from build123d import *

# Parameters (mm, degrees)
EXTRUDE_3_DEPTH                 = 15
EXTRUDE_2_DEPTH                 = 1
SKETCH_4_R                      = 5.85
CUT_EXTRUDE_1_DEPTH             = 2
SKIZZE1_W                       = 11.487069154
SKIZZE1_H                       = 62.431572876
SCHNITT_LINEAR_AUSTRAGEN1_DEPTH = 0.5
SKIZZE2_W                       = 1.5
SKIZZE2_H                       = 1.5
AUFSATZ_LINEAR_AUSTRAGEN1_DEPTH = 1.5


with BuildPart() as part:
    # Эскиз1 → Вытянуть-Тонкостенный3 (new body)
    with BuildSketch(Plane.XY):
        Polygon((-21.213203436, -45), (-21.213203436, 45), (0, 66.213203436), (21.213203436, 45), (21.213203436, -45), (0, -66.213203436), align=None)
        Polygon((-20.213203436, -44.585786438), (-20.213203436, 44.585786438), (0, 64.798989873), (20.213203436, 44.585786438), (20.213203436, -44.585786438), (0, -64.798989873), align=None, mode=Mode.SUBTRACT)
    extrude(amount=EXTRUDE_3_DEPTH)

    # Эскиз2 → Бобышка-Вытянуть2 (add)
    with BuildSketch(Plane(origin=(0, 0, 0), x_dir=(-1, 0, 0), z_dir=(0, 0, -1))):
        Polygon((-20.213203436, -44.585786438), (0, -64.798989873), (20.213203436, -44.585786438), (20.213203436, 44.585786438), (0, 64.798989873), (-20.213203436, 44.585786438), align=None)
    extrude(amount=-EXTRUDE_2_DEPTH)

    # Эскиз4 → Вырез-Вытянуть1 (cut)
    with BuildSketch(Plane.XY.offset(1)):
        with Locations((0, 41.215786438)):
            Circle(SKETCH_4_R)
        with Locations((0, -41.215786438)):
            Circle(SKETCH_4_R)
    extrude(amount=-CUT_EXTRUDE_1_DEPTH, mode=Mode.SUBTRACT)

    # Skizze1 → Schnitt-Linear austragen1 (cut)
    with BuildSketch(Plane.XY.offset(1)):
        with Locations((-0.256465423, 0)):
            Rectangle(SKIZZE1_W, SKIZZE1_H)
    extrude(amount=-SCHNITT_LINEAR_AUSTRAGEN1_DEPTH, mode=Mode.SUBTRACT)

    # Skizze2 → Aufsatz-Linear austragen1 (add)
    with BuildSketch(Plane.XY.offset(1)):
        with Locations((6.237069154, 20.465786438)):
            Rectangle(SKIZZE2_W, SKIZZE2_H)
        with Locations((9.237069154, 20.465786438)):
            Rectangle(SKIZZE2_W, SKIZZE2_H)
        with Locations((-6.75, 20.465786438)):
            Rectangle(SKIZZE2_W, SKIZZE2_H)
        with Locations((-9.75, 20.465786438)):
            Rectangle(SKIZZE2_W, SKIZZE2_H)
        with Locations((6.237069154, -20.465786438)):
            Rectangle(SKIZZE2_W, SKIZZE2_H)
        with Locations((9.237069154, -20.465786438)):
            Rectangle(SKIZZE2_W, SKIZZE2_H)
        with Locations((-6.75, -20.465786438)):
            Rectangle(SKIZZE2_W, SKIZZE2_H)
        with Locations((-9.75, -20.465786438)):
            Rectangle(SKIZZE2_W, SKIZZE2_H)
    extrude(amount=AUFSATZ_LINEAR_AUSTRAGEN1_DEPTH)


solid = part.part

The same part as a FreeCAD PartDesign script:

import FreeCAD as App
import Part
import Sketcher

doc = App.newDocument("Part")
body = doc.addObject("PartDesign::Body", "Body")

sketch1 = body.newObject("Sketcher::SketchObject", "Sketch")
sketch1.AttachmentSupport = (doc.getObject("XY_Plane"), [""])
sketch1.MapMode = "FlatFace"
sketch1.addGeometry(Part.LineSegment(App.Vector(-21, 45, 0), App.Vector(-21, -45, 0)), False)
sketch1.addGeometry(Part.LineSegment(App.Vector(-21, -45, 0), App.Vector(0, -66, 0)), False)
sketch1.addGeometry(Part.LineSegment(App.Vector(0, -66, 0), App.Vector(21, -45, 0)), False)
sketch1.addGeometry(Part.LineSegment(App.Vector(21, -45, 0), App.Vector(21, 45, 0)), False)
sketch1.addGeometry(Part.LineSegment(App.Vector(21, 45, 0), App.Vector(0, 66, 0)), False)
sketch1.addGeometry(Part.LineSegment(App.Vector(0, 66, 0), App.Vector(-21, 45, 0)), False)
sketch1.addGeometry(Part.LineSegment(App.Vector(-20, -45, 0), App.Vector(-20, 45, 0)), False)
sketch1.addGeometry(Part.LineSegment(App.Vector(-20, 45, 0), App.Vector(0, 65, 0)), False)
sketch1.addGeometry(Part.LineSegment(App.Vector(0, 65, 0), App.Vector(20, 45, 0)), False)
sketch1.addGeometry(Part.LineSegment(App.Vector(20, 45, 0), App.Vector(20, -45, 0)), False)
sketch1.addGeometry(Part.LineSegment(App.Vector(20, -45, 0), App.Vector(0, -65, 0)), False)
sketch1.addGeometry(Part.LineSegment(App.Vector(0, -65, 0), App.Vector(-20, -45, 0)), False)
sketch1.addConstraint(Sketcher.Constraint("Coincident", 0, 2, 1, 1))
sketch1.addConstraint(Sketcher.Constraint("Coincident", 1, 2, 2, 1))
sketch1.addConstraint(Sketcher.Constraint("Coincident", 2, 2, 3, 1))
sketch1.addConstraint(Sketcher.Constraint("Coincident", 3, 2, 4, 1))
sketch1.addConstraint(Sketcher.Constraint("Coincident", 4, 2, 5, 1))
sketch1.addConstraint(Sketcher.Constraint("Coincident", 5, 2, 0, 1))
sketch1.addConstraint(Sketcher.Constraint("Coincident", 6, 2, 7, 1))
sketch1.addConstraint(Sketcher.Constraint("Coincident", 7, 2, 8, 1))
sketch1.addConstraint(Sketcher.Constraint("Coincident", 8, 2, 9, 1))
sketch1.addConstraint(Sketcher.Constraint("Coincident", 9, 2, 10, 1))
sketch1.addConstraint(Sketcher.Constraint("Coincident", 10, 2, 11, 1))
sketch1.addConstraint(Sketcher.Constraint("Coincident", 11, 2, 6, 1))
sketch1.addConstraint(Sketcher.Constraint("Vertical", 0))
sketch1.addConstraint(Sketcher.Constraint("Vertical", 3))
sketch1.addConstraint(Sketcher.Constraint("Vertical", 6))
sketch1.addConstraint(Sketcher.Constraint("Vertical", 9))
sketch1.addConstraint(Sketcher.Constraint("Symmetric", 0, 2, 3, 2, -1, 1))
sketch1.addConstraint(Sketcher.Constraint("Symmetric", 1, 2, 4, 2, -1, 1))
sketch1.addConstraint(Sketcher.Constraint("Symmetric", 6, 2, 9, 2, -1, 1))
sketch1.addConstraint(Sketcher.Constraint("Symmetric", 7, 2, 10, 2, -1, 1))
sketch1.addConstraint(Sketcher.Constraint("PointOnObject", 1, 2, -2))
sketch1.addConstraint(Sketcher.Constraint("PointOnObject", 7, 2, -2))
sketch1.addConstraint(Sketcher.Constraint("Perpendicular", 1, 2))
sketch1.addConstraint(Sketcher.Constraint("Perpendicular", 4, 5))
sketch1.addConstraint(Sketcher.Constraint("Parallel", 5, 7))
sketch1.addConstraint(Sketcher.Constraint("Perpendicular", 7, 8))
sketch1.addConstraint(Sketcher.Constraint("Perpendicular", 10, 11))
sketch1.addConstraint(Sketcher.Constraint("Horizontal", 0, 2, 2, 2))
sketch1.addConstraint(Sketcher.Constraint("DistanceY", 0, 2, 0, 1, 90.0))
sketch1.addConstraint(Sketcher.Constraint("Distance", 1, 30.0))
sketch1.addConstraint(Sketcher.Constraint("DistanceX", 5, 2, 6, 2, 1.0))
sketch1.addConstraint(Sketcher.Constraint("DistanceY", 6, 1, 6, 2, 89.171573))
pad1 = body.newObject("PartDesign::Pad", "Pad")
pad1.Profile = sketch1
pad1.Length = 15

sketch2 = body.newObject("Sketcher::SketchObject", "Sketch001")
sketch2.AttachmentSupport = (doc.getObject("XY_Plane"), [""])
sketch2.MapMode = "FlatFace"
sketch2.addGeometry(Part.LineSegment(App.Vector(20, -45, 0), App.Vector(0, -65, 0)), False)
sketch2.addGeometry(Part.LineSegment(App.Vector(0, -65, 0), App.Vector(-20, -45, 0)), False)
sketch2.addGeometry(Part.LineSegment(App.Vector(-20, -45, 0), App.Vector(-20, 45, 0)), False)
sketch2.addGeometry(Part.LineSegment(App.Vector(-20, 45, 0), App.Vector(0, 65, 0)), False)
sketch2.addGeometry(Part.LineSegment(App.Vector(0, 65, 0), App.Vector(20, 45, 0)), False)
sketch2.addGeometry(Part.LineSegment(App.Vector(20, 45, 0), App.Vector(20, -45, 0)), False)
sketch2.addConstraint(Sketcher.Constraint("Coincident", 0, 2, 1, 1))
sketch2.addConstraint(Sketcher.Constraint("Coincident", 1, 2, 2, 1))
sketch2.addConstraint(Sketcher.Constraint("Coincident", 2, 2, 3, 1))
sketch2.addConstraint(Sketcher.Constraint("Coincident", 3, 2, 4, 1))
sketch2.addConstraint(Sketcher.Constraint("Coincident", 4, 2, 5, 1))
sketch2.addConstraint(Sketcher.Constraint("Coincident", 5, 2, 0, 1))
sketch2.addConstraint(Sketcher.Constraint("Vertical", 2))
sketch2.addConstraint(Sketcher.Constraint("Vertical", 5))
sketch2.addConstraint(Sketcher.Constraint("Symmetric", 0, 2, 3, 2, -1, 1))
sketch2.addConstraint(Sketcher.Constraint("Symmetric", 1, 2, 4, 2, -1, 1))
sketch2.addConstraint(Sketcher.Constraint("PointOnObject", 0, 2, -2))
sketch2.addConstraint(Sketcher.Constraint("Perpendicular", 0, 1))
sketch2.addConstraint(Sketcher.Constraint("Perpendicular", 1, 3))
sketch2.addConstraint(Sketcher.Constraint("Horizontal", 2, 2, 4, 2))
sketch2.addConstraint(Sketcher.Constraint("DistanceY", 2, 1, 2, 2, 89.171573))
sketch2.addConstraint(Sketcher.Constraint("DistanceY", 0, 2, -1, 1, 64.79899))
pad2 = body.newObject("PartDesign::Pad", "Pad001")
pad2.Profile = sketch2
pad2.Length = 1

sketch3 = body.newObject("Sketcher::SketchObject", "Sketch002")
sketch3.AttachmentSupport = (doc.getObject("XY_Plane"), [""])
sketch3.MapMode = "FlatFace"
sketch3.AttachmentOffset = App.Placement(App.Vector(0, 0, 1), App.Rotation())
sketch3.addGeometry(Part.Circle(App.Vector(0, 41, 0), App.Vector(0, 0, 1), 6), False)
sketch3.addGeometry(Part.Circle(App.Vector(0, -41, 0), App.Vector(0, 0, 1), 6), False)
sketch3.addConstraint(Sketcher.Constraint("Equal", 0, 1))
sketch3.addConstraint(Sketcher.Constraint("Symmetric", 0, 3, 1, 3, -1, 1))
sketch3.addConstraint(Sketcher.Constraint("PointOnObject", 0, 3, -2))
sketch3.addConstraint(Sketcher.Constraint("Diameter", 0, 11.7))
sketch3.addConstraint(Sketcher.Constraint("DistanceY", -1, 1, 0, 3, 41.215786))
pocket1 = body.newObject("PartDesign::Pocket", "Pocket")
pocket1.Profile = sketch3
pocket1.Length = 2

sketch4 = body.newObject("Sketcher::SketchObject", "Sketch003")
sketch4.AttachmentSupport = (doc.getObject("XY_Plane"), [""])
sketch4.MapMode = "FlatFace"
sketch4.AttachmentOffset = App.Placement(App.Vector(0, 0, 1), App.Rotation())
sketch4.addGeometry(Part.LineSegment(App.Vector(-6, 31, 0), App.Vector(-6, -31, 0)), False)
sketch4.addGeometry(Part.LineSegment(App.Vector(-6, -31, 0), App.Vector(5, -31, 0)), False)
sketch4.addGeometry(Part.LineSegment(App.Vector(5, -31, 0), App.Vector(5, 31, 0)), False)
sketch4.addGeometry(Part.LineSegment(App.Vector(5, 31, 0), App.Vector(-6, 31, 0)), False)
sketch4.addConstraint(Sketcher.Constraint("Coincident", 0, 2, 1, 1))
sketch4.addConstraint(Sketcher.Constraint("Coincident", 1, 2, 2, 1))
sketch4.addConstraint(Sketcher.Constraint("Coincident", 2, 2, 3, 1))
sketch4.addConstraint(Sketcher.Constraint("Coincident", 3, 2, 0, 1))
sketch4.addConstraint(Sketcher.Constraint("Vertical", 0))
sketch4.addConstraint(Sketcher.Constraint("Horizontal", 1))
sketch4.addConstraint(Sketcher.Constraint("Vertical", 2))
sketch4.addConstraint(Sketcher.Constraint("Horizontal", 3))
sketch4.addConstraint(Sketcher.Constraint("DistanceX", 0, 2, -1, 1, 6.0))
sketch4.addConstraint(Sketcher.Constraint("DistanceX", 1, 1, 1, 2, 11.487069))
sketch4.addConstraint(Sketcher.Constraint("DistanceY", 0, 2, 0, 1, 62.431573))
sketch4.addConstraint(Sketcher.Constraint("DistanceY", 0, 2, -1, 1, 31.215786))
pocket2 = body.newObject("PartDesign::Pocket", "Pocket001")
pocket2.Profile = sketch4
pocket2.Length = 0.5

sketch5 = body.newObject("Sketcher::SketchObject", "Sketch004")
sketch5.AttachmentSupport = (doc.getObject("XY_Plane"), [""])
sketch5.MapMode = "FlatFace"
sketch5.AttachmentOffset = App.Placement(App.Vector(0, 0, 1), App.Rotation())
sketch5.addGeometry(Part.LineSegment(App.Vector(5.5, 21.2, 0), App.Vector(5.5, 19.7, 0)), False)
sketch5.addGeometry(Part.LineSegment(App.Vector(5.5, 19.7, 0), App.Vector(7, 19.7, 0)), False)
sketch5.addGeometry(Part.LineSegment(App.Vector(7, 19.7, 0), App.Vector(7, 21.2, 0)), False)
sketch5.addGeometry(Part.LineSegment(App.Vector(7, 21.2, 0), App.Vector(5.5, 21.2, 0)), False)
sketch5.addGeometry(Part.LineSegment(App.Vector(8.5, 21.2, 0), App.Vector(8.5, 19.7, 0)), False)
sketch5.addGeometry(Part.LineSegment(App.Vector(8.5, 19.7, 0), App.Vector(10, 19.7, 0)), False)
sketch5.addGeometry(Part.LineSegment(App.Vector(10, 19.7, 0), App.Vector(10, 21.2, 0)), False)
sketch5.addGeometry(Part.LineSegment(App.Vector(10, 21.2, 0), App.Vector(8.5, 21.2, 0)), False)
sketch5.addGeometry(Part.LineSegment(App.Vector(-7.5, 21.2, 0), App.Vector(-7.5, 19.7, 0)), False)
sketch5.addGeometry(Part.LineSegment(App.Vector(-7.5, 19.7, 0), App.Vector(-6, 19.7, 0)), False)
sketch5.addGeometry(Part.LineSegment(App.Vector(-6, 19.7, 0), App.Vector(-6, 21.2, 0)), False)
sketch5.addGeometry(Part.LineSegment(App.Vector(-6, 21.2, 0), App.Vector(-7.5, 21.2, 0)), False)
sketch5.addGeometry(Part.LineSegment(App.Vector(-10.5, 21.2, 0), App.Vector(-10.5, 19.7, 0)), False)
sketch5.addGeometry(Part.LineSegment(App.Vector(-10.5, 19.7, 0), App.Vector(-9, 19.7, 0)), False)
sketch5.addGeometry(Part.LineSegment(App.Vector(-9, 19.7, 0), App.Vector(-9, 21.2, 0)), False)
sketch5.addGeometry(Part.LineSegment(App.Vector(-9, 21.2, 0), App.Vector(-10.5, 21.2, 0)), False)
sketch5.addGeometry(Part.LineSegment(App.Vector(5.5, -19.7, 0), App.Vector(5.5, -21.2, 0)), False)
sketch5.addGeometry(Part.LineSegment(App.Vector(5.5, -21.2, 0), App.Vector(7, -21.2, 0)), False)
sketch5.addGeometry(Part.LineSegment(App.Vector(7, -21.2, 0), App.Vector(7, -19.7, 0)), False)
sketch5.addGeometry(Part.LineSegment(App.Vector(7, -19.7, 0), App.Vector(5.5, -19.7, 0)), False)
sketch5.addGeometry(Part.LineSegment(App.Vector(8.5, -19.7, 0), App.Vector(8.5, -21.2, 0)), False)
sketch5.addGeometry(Part.LineSegment(App.Vector(8.5, -21.2, 0), App.Vector(10, -21.2, 0)), False)
sketch5.addGeometry(Part.LineSegment(App.Vector(10, -21.2, 0), App.Vector(10, -19.7, 0)), False)
sketch5.addGeometry(Part.LineSegment(App.Vector(10, -19.7, 0), App.Vector(8.5, -19.7, 0)), False)
sketch5.addGeometry(Part.LineSegment(App.Vector(-7.5, -19.7, 0), App.Vector(-7.5, -21.2, 0)), False)
sketch5.addGeometry(Part.LineSegment(App.Vector(-7.5, -21.2, 0), App.Vector(-6, -21.2, 0)), False)
sketch5.addGeometry(Part.LineSegment(App.Vector(-6, -21.2, 0), App.Vector(-6, -19.7, 0)), False)
sketch5.addGeometry(Part.LineSegment(App.Vector(-6, -19.7, 0), App.Vector(-7.5, -19.7, 0)), False)
sketch5.addGeometry(Part.LineSegment(App.Vector(-10.5, -19.7, 0), App.Vector(-10.5, -21.2, 0)), False)
sketch5.addGeometry(Part.LineSegment(App.Vector(-10.5, -21.2, 0), App.Vector(-9, -21.2, 0)), False)
sketch5.addGeometry(Part.LineSegment(App.Vector(-9, -21.2, 0), App.Vector(-9, -19.7, 0)), False)
sketch5.addGeometry(Part.LineSegment(App.Vector(-9, -19.7, 0), App.Vector(-10.5, -19.7, 0)), False)
sketch5.addConstraint(Sketcher.Constraint("Coincident", 0, 2, 1, 1))
sketch5.addConstraint(Sketcher.Constraint("Coincident", 1, 2, 2, 1))
sketch5.addConstraint(Sketcher.Constraint("Coincident", 2, 2, 3, 1))
sketch5.addConstraint(Sketcher.Constraint("Coincident", 3, 2, 0, 1))
sketch5.addConstraint(Sketcher.Constraint("Coincident", 4, 2, 5, 1))
sketch5.addConstraint(Sketcher.Constraint("Coincident", 5, 2, 6, 1))
sketch5.addConstraint(Sketcher.Constraint("Coincident", 6, 2, 7, 1))
sketch5.addConstraint(Sketcher.Constraint("Coincident", 7, 2, 4, 1))
sketch5.addConstraint(Sketcher.Constraint("Coincident", 8, 2, 9, 1))
sketch5.addConstraint(Sketcher.Constraint("Coincident", 9, 2, 10, 1))
sketch5.addConstraint(Sketcher.Constraint("Coincident", 10, 2, 11, 1))
sketch5.addConstraint(Sketcher.Constraint("Coincident", 11, 2, 8, 1))
sketch5.addConstraint(Sketcher.Constraint("Coincident", 12, 2, 13, 1))
sketch5.addConstraint(Sketcher.Constraint("Coincident", 13, 2, 14, 1))
sketch5.addConstraint(Sketcher.Constraint("Coincident", 14, 2, 15, 1))
sketch5.addConstraint(Sketcher.Constraint("Coincident", 15, 2, 12, 1))
sketch5.addConstraint(Sketcher.Constraint("Coincident", 16, 2, 17, 1))
sketch5.addConstraint(Sketcher.Constraint("Coincident", 17, 2, 18, 1))
sketch5.addConstraint(Sketcher.Constraint("Coincident", 18, 2, 19, 1))
sketch5.addConstraint(Sketcher.Constraint("Coincident", 19, 2, 16, 1))
sketch5.addConstraint(Sketcher.Constraint("Coincident", 20, 2, 21, 1))
sketch5.addConstraint(Sketcher.Constraint("Coincident", 21, 2, 22, 1))
sketch5.addConstraint(Sketcher.Constraint("Coincident", 22, 2, 23, 1))
sketch5.addConstraint(Sketcher.Constraint("Coincident", 23, 2, 20, 1))
sketch5.addConstraint(Sketcher.Constraint("Coincident", 24, 2, 25, 1))
sketch5.addConstraint(Sketcher.Constraint("Coincident", 25, 2, 26, 1))
sketch5.addConstraint(Sketcher.Constraint("Coincident", 26, 2, 27, 1))
sketch5.addConstraint(Sketcher.Constraint("Coincident", 27, 2, 24, 1))
sketch5.addConstraint(Sketcher.Constraint("Coincident", 28, 2, 29, 1))
sketch5.addConstraint(Sketcher.Constraint("Coincident", 29, 2, 30, 1))
sketch5.addConstraint(Sketcher.Constraint("Coincident", 30, 2, 31, 1))
sketch5.addConstraint(Sketcher.Constraint("Coincident", 31, 2, 28, 1))
sketch5.addConstraint(Sketcher.Constraint("Vertical", 0))
sketch5.addConstraint(Sketcher.Constraint("Horizontal", 1))
sketch5.addConstraint(Sketcher.Constraint("Vertical", 2))
sketch5.addConstraint(Sketcher.Constraint("Horizontal", 3))
sketch5.addConstraint(Sketcher.Constraint("Vertical", 4))
sketch5.addConstraint(Sketcher.Constraint("Horizontal", 5))
sketch5.addConstraint(Sketcher.Constraint("Vertical", 6))
sketch5.addConstraint(Sketcher.Constraint("Horizontal", 7))
sketch5.addConstraint(Sketcher.Constraint("Vertical", 8))
sketch5.addConstraint(Sketcher.Constraint("Horizontal", 9))
sketch5.addConstraint(Sketcher.Constraint("Vertical", 10))
sketch5.addConstraint(Sketcher.Constraint("Horizontal", 11))
sketch5.addConstraint(Sketcher.Constraint("Vertical", 12))
sketch5.addConstraint(Sketcher.Constraint("Horizontal", 13))
sketch5.addConstraint(Sketcher.Constraint("Vertical", 14))
sketch5.addConstraint(Sketcher.Constraint("Horizontal", 15))
sketch5.addConstraint(Sketcher.Constraint("Vertical", 16))
sketch5.addConstraint(Sketcher.Constraint("Horizontal", 17))
sketch5.addConstraint(Sketcher.Constraint("Vertical", 18))
sketch5.addConstraint(Sketcher.Constraint("Horizontal", 19))
sketch5.addConstraint(Sketcher.Constraint("Vertical", 20))
sketch5.addConstraint(Sketcher.Constraint("Horizontal", 21))
sketch5.addConstraint(Sketcher.Constraint("Vertical", 22))
sketch5.addConstraint(Sketcher.Constraint("Horizontal", 23))
sketch5.addConstraint(Sketcher.Constraint("Vertical", 24))
sketch5.addConstraint(Sketcher.Constraint("Horizontal", 25))
sketch5.addConstraint(Sketcher.Constraint("Vertical", 26))
sketch5.addConstraint(Sketcher.Constraint("Horizontal", 27))
sketch5.addConstraint(Sketcher.Constraint("Vertical", 28))
sketch5.addConstraint(Sketcher.Constraint("Horizontal", 29))
sketch5.addConstraint(Sketcher.Constraint("Vertical", 30))
sketch5.addConstraint(Sketcher.Constraint("Horizontal", 31))
sketch5.addConstraint(Sketcher.Constraint("Symmetric", 3, 2, 16, 2, -1))
sketch5.addConstraint(Sketcher.Constraint("Symmetric", 1, 2, 18, 2, -1))
sketch5.addConstraint(Sketcher.Constraint("Symmetric", 7, 2, 20, 2, -1))
sketch5.addConstraint(Sketcher.Constraint("Symmetric", 5, 2, 22, 2, -1))
sketch5.addConstraint(Sketcher.Constraint("Symmetric", 11, 2, 24, 2, -1))
sketch5.addConstraint(Sketcher.Constraint("Symmetric", 9, 2, 26, 2, -1))
sketch5.addConstraint(Sketcher.Constraint("Symmetric", 15, 2, 28, 2, -1))
sketch5.addConstraint(Sketcher.Constraint("Symmetric", 13, 2, 30, 2, -1))
sketch5.addConstraint(Sketcher.Constraint("Horizontal", 1, 2, 4, 2))
sketch5.addConstraint(Sketcher.Constraint("Horizontal", 3, 2, 6, 2))
sketch5.addConstraint(Sketcher.Constraint("Horizontal", 5, 2, 8, 2))
sketch5.addConstraint(Sketcher.Constraint("Horizontal", 7, 2, 10, 2))
sketch5.addConstraint(Sketcher.Constraint("Horizontal", 9, 2, 12, 2))
sketch5.addConstraint(Sketcher.Constraint("Horizontal", 11, 2, 14, 2))
sketch5.addConstraint(Sketcher.Constraint("Equal", 3, 5))
sketch5.addConstraint(Sketcher.Constraint("Equal", 7, 9))
sketch5.addConstraint(Sketcher.Constraint("Equal", 11, 13))
sketch5.addConstraint(Sketcher.Constraint("Equal", 31, 0))
sketch5.addConstraint(Sketcher.Constraint("DistanceX", 1, 1, 1, 2, 1.5))
sketch5.addConstraint(Sketcher.Constraint("DistanceX", 9, 2, -1, 1, 6.0))
sketch5.addConstraint(Sketcher.Constraint("DistanceX", 13, 2, -1, 1, 9.0))
sketch5.addConstraint(Sketcher.Constraint("DistanceX", 0, 2, 4, 2, 3.0))
sketch5.addConstraint(Sketcher.Constraint("DistanceX", -1, 1, 0, 2, 5.487069))
sketch5.addConstraint(Sketcher.Constraint("DistanceY", -1, 1, 0, 2, 19.715786))
pad3 = body.newObject("PartDesign::Pad", "Pad002")
pad3.Profile = sketch5
pad3.Length = 1.5

doc.recompute()
